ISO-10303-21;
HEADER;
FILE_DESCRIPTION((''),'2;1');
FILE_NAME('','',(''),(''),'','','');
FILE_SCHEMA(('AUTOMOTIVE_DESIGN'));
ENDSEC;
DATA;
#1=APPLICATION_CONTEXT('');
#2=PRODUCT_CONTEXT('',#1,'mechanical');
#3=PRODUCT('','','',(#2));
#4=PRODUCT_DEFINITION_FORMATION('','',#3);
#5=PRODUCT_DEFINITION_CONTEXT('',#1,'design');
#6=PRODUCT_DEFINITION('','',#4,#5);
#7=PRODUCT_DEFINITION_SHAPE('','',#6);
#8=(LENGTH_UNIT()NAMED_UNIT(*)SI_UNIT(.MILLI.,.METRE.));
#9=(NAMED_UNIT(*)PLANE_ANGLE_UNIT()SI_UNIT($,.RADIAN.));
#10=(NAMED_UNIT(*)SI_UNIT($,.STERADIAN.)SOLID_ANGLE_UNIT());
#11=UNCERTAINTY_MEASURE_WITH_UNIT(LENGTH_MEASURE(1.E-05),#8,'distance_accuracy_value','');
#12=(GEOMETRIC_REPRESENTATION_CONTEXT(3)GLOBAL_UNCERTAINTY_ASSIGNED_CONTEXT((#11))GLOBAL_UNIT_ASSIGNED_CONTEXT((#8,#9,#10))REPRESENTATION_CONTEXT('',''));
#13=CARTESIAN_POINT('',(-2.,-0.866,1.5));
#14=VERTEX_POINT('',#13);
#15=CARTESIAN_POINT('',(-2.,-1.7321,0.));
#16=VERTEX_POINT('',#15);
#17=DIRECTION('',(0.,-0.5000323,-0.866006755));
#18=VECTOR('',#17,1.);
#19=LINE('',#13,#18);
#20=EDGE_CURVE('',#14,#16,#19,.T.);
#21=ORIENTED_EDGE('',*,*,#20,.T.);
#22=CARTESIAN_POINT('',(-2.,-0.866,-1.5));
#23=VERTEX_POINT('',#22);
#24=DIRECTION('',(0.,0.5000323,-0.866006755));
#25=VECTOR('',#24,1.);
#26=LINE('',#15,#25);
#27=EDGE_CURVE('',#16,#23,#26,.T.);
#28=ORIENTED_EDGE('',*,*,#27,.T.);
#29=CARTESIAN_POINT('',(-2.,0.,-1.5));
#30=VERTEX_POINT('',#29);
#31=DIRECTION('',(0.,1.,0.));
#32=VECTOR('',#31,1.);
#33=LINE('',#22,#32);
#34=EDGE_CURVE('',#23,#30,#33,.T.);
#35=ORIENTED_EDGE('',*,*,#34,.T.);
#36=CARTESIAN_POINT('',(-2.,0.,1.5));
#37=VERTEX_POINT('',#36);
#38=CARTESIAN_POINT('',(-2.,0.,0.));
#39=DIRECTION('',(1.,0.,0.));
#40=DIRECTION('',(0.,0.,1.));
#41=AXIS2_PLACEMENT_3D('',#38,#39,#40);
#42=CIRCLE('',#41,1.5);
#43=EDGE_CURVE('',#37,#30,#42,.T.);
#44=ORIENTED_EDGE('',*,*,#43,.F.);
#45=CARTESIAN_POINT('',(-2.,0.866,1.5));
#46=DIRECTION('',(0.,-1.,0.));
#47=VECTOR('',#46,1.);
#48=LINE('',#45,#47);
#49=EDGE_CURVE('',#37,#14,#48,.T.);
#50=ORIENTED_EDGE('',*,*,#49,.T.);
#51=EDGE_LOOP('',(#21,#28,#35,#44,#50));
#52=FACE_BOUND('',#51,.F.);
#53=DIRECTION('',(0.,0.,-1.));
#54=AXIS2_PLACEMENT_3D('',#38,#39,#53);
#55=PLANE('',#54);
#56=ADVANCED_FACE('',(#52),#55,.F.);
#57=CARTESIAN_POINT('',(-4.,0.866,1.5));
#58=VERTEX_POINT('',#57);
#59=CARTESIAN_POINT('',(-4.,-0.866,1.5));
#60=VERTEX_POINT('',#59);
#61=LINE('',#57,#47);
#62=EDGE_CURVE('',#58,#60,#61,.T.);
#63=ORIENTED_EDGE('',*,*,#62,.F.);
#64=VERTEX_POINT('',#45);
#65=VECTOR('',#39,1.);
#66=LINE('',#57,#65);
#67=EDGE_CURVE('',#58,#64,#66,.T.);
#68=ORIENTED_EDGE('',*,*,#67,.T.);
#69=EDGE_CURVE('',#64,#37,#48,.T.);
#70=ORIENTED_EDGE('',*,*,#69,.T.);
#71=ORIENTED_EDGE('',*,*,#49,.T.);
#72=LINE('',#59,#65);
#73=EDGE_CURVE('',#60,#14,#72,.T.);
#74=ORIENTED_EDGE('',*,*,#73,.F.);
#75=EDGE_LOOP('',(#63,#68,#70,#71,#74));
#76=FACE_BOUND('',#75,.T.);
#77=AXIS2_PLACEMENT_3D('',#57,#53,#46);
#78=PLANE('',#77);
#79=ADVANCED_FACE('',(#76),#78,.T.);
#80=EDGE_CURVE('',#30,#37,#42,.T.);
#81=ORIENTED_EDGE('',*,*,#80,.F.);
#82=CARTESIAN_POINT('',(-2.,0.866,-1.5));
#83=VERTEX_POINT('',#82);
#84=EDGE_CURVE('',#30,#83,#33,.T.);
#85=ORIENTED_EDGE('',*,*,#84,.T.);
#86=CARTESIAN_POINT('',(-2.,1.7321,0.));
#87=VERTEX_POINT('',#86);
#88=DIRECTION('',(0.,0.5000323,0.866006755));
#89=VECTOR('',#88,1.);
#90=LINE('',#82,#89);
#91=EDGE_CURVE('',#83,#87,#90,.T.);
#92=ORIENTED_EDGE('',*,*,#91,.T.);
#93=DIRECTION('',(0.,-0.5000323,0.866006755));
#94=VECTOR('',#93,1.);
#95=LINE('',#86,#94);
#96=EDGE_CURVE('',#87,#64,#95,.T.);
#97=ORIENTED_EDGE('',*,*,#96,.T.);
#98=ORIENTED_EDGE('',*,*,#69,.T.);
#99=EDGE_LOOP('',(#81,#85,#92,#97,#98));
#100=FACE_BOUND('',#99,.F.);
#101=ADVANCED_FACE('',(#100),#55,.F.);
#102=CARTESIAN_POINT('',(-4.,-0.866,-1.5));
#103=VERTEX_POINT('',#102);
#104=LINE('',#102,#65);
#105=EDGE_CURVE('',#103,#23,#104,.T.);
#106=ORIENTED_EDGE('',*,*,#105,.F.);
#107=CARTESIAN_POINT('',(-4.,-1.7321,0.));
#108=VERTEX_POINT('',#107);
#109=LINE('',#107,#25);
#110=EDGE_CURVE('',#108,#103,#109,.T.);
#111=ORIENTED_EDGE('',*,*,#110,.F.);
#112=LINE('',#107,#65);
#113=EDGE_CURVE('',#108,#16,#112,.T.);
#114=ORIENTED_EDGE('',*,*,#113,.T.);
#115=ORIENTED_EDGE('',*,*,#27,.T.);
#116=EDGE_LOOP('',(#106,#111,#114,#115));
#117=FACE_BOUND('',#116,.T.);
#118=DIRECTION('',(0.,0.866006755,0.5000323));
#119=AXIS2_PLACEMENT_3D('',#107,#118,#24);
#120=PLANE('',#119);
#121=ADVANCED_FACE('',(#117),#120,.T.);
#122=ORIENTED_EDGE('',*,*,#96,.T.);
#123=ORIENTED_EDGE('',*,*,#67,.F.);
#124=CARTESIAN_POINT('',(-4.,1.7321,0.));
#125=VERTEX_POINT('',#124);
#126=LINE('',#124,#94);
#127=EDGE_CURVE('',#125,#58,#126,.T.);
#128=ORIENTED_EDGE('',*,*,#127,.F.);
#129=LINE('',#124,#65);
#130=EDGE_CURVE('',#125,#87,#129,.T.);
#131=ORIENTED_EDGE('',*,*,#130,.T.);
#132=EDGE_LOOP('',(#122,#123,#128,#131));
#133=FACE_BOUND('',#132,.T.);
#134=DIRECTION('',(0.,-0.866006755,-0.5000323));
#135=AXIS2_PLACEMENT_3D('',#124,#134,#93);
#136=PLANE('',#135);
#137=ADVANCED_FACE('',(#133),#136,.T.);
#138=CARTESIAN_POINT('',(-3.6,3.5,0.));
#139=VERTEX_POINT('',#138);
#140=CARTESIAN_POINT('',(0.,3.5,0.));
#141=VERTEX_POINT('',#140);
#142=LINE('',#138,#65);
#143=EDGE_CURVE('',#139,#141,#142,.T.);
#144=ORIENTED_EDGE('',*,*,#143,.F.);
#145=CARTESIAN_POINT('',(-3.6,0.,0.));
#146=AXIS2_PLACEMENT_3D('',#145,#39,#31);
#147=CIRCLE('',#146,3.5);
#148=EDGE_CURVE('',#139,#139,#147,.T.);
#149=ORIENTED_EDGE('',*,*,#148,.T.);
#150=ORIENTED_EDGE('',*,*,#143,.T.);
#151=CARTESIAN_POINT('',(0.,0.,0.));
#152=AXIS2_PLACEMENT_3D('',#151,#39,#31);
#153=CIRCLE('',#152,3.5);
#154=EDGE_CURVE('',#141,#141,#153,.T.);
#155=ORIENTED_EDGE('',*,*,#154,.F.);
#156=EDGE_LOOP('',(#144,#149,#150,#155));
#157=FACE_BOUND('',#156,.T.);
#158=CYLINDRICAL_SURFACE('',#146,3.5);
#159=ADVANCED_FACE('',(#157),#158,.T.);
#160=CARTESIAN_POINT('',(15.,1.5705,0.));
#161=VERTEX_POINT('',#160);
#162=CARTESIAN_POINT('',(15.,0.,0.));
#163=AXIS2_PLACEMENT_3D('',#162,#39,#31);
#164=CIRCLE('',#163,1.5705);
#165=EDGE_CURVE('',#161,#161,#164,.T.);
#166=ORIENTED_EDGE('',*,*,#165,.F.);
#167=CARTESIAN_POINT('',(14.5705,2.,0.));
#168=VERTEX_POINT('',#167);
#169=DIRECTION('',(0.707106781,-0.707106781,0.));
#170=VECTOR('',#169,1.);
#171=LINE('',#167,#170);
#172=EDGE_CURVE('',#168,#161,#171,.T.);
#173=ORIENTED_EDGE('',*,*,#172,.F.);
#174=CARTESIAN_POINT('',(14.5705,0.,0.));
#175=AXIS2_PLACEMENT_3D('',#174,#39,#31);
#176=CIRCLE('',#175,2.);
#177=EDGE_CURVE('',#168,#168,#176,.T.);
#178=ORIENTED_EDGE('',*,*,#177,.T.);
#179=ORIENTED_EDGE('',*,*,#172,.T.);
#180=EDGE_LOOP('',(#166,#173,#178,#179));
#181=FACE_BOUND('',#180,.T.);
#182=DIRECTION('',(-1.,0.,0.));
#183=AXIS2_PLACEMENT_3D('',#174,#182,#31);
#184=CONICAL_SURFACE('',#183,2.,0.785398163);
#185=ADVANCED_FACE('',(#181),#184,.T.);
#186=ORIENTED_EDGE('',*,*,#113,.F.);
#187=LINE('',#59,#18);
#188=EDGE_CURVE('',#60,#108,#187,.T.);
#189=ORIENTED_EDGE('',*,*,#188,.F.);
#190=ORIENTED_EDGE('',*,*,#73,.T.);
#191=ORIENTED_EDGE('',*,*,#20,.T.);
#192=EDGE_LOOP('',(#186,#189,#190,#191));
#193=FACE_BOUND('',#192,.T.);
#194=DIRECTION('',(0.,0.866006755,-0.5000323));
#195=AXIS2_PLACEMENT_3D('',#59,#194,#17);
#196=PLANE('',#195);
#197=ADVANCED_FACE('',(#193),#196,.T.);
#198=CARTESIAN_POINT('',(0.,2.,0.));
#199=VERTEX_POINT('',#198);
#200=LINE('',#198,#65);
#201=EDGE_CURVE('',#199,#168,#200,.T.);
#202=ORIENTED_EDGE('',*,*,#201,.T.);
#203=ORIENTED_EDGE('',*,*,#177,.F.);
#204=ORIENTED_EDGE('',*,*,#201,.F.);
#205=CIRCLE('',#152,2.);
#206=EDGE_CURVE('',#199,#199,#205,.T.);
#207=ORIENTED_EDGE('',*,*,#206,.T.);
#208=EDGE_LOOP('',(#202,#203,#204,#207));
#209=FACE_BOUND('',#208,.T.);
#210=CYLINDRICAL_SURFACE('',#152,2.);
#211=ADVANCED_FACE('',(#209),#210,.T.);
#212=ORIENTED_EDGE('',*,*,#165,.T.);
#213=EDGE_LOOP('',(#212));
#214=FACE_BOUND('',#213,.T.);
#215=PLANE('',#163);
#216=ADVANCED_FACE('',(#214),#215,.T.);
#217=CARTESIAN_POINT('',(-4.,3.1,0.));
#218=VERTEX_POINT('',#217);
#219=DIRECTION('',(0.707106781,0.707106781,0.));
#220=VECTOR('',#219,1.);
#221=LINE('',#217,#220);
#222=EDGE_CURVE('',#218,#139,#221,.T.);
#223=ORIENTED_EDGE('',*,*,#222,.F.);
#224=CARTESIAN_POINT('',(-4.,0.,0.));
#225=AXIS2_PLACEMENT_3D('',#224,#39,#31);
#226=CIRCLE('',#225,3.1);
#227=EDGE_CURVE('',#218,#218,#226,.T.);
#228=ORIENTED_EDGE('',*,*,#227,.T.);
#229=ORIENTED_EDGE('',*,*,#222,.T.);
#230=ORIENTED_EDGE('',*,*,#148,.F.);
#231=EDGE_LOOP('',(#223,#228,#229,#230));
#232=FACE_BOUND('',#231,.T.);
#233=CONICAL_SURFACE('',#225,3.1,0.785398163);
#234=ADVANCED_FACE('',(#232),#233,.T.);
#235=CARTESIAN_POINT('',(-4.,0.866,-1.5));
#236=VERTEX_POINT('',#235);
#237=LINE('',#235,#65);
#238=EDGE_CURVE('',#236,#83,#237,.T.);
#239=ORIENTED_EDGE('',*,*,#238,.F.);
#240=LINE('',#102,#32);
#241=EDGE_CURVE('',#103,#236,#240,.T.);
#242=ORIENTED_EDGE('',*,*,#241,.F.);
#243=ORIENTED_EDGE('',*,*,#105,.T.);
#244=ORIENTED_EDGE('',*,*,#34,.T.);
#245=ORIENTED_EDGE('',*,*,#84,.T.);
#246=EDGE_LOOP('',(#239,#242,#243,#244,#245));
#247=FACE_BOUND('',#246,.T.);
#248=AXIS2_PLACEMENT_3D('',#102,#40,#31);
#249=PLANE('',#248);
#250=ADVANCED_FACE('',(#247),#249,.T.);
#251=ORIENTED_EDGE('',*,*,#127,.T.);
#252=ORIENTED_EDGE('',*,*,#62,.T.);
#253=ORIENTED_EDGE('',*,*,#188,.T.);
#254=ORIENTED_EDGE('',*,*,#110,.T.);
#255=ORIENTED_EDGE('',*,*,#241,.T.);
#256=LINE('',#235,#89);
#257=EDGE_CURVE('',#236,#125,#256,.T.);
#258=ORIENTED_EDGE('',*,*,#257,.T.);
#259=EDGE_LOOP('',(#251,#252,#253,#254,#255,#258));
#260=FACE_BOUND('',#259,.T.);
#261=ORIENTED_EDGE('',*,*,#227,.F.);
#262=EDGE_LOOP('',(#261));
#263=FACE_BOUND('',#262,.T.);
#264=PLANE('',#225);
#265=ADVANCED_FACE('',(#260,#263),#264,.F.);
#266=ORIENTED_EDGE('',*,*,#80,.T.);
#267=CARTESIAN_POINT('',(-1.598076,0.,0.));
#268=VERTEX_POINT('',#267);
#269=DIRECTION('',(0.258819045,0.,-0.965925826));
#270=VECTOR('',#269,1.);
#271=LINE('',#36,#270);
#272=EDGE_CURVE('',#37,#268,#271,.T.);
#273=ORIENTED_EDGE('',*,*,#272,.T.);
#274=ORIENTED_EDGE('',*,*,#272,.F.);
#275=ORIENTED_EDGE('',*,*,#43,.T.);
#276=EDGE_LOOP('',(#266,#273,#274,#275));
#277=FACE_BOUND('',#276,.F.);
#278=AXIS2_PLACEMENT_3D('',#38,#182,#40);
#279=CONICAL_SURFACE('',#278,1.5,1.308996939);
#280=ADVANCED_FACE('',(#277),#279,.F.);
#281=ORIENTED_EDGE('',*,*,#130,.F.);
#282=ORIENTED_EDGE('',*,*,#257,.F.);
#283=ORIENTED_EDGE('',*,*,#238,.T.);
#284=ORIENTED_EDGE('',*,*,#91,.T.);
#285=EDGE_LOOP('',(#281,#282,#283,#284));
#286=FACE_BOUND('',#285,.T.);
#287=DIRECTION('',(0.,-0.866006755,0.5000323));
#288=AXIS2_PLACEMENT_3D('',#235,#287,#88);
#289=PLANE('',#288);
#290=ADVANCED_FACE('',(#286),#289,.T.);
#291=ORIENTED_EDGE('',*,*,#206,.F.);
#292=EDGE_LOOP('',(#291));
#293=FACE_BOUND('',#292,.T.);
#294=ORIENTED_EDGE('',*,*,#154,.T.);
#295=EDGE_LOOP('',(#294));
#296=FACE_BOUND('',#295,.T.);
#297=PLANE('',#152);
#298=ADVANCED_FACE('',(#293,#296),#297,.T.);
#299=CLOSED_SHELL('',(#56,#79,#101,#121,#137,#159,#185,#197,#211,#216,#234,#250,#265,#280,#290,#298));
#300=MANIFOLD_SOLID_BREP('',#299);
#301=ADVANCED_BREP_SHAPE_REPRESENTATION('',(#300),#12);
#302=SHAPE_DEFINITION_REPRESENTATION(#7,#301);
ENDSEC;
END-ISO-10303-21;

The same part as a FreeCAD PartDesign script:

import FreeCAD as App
import Part
import Sketcher

V = App.Vector
Q = App.Units.Quantity


def add_polygon(sketch, points):
    """Adds a closed chain of lines whose ends are joined by coincident constraints."""
    first, n = sketch.GeometryCount, len(points)
    for a, b in zip(points, points[1:] + points[:1]):
        sketch.addGeometry(Part.LineSegment(App.Vector(*a, 0), App.Vector(*b, 0)), False)
    for i in range(n):
        sketch.addConstraint(Sketcher.Constraint("Coincident", first + i, 2, first + (i + 1) % n, 1))

doc = App.newDocument("Part")
body = doc.addObject("PartDesign::Body", "Body")

sketch1 = doc.addObject("Sketcher::SketchObject", "Sketch")
body.addObject(sketch1)
sketch1.AttachmentSupport = (doc.XY_Plane, [""])
sketch1.MapMode = "FlatFace"
add_polygon(sketch1, [(-4, 0), (15, 0), (15, 1.6), (14.6, 2), (0, 2), (0, 3.5), (-3.6, 3.5), (-4, 3.1)])
sketch1.addConstraint(Sketcher.Constraint("Horizontal", 0))
sketch1.addConstraint(Sketcher.Constraint("Vertical", 1))
sketch1.addConstraint(Sketcher.Constraint("Horizontal", 3))
sketch1.addConstraint(Sketcher.Constraint("Vertical", 4))
sketch1.addConstraint(Sketcher.Constraint("Horizontal", 5))
sketch1.addConstraint(Sketcher.Constraint("Vertical", 7))
sketch1.addConstraint(Sketcher.Constraint("PointOnObject", 0, 2, -1))
sketch1.addConstraint(Sketcher.Constraint("PointOnObject", 3, 2, -2))
sketch1.addConstraint(Sketcher.Constraint("Perpendicular", 2, 6))
sketch1.addConstraint(Sketcher.Constraint("DistanceX", 0, 1, 0, 2, 19.0))
sketch1.addConstraint(Sketcher.Constraint("Angle", 2, Q("135 deg")))
sketch1.addConstraint(Sketcher.Constraint("DistanceX", 5, 2, 5, 1, 3.6))
sketch1.addConstraint(Sketcher.Constraint("DistanceY", 4, 1, 4, 2, 1.5))
sketch1.addConstraint(Sketcher.Constraint("DistanceY", 7, 2, 7, 1, 3.1))
sketch1.addConstraint(Sketcher.Constraint("DistanceX", -1, 1, 0, 2, 15.0))
sketch1.addConstraint(Sketcher.Constraint("DistanceX", 3, 2, 3, 1, 14.5705))
revolution = doc.addObject("PartDesign::Revolution", "Revolution")
body.addObject(revolution)
revolution.Profile = sketch1
revolution.ReferenceAxis = (sketch1, ["H_Axis"])
revolution.Angle = 360

sketch2 = doc.addObject("Sketcher::SketchObject", "Sketch001")
body.addObject(sketch2)
sketch2.AttachmentSupport = (doc.YZ_Plane, [""])
sketch2.MapMode = "FlatFace"
sketch2.AttachmentOffset = App.Placement(V(0, 0, -4), App.Rotation())
sketch2.addGeometry(Part.Circle(V(0, 0, 0), V(0, 0, 1), 1.5), False)
sketch2.addConstraint(Sketcher.Constraint("Coincident", 0, 3, -1, 1))
sketch2.addConstraint(Sketcher.Constraint("Diameter", 0, 3.0))
doc.recompute()
hole = doc.addObject("PartDesign::Hole", "Hole")
body.addObject(hole)
hole.Profile = sketch2
hole.ThreadType = "None"
hole.Diameter = 3
hole.DepthType = "Dimension"
hole.Depth = 2
hole.DrillPoint = "Angled"
hole.DrillPointAngle = 150
hole.Reversed = True

sketch3 = doc.addObject("Sketcher::SketchObject", "Sketch002")
body.addObject(sketch3)
sketch3.AttachmentSupport = (doc.YZ_Plane, [""])
sketch3.MapMode = "FlatFace"
sketch3.AttachmentOffset = App.Placement(V(0, 0, -4), App.Rotation())
add_polygon(sketch3, [(0.9, 1.5), (-0.9, 1.5), (-1.7, 0), (-0.9, -1.5), (0.9, -1.5), (1.7, 0)])
sketch3.addConstraint(Sketcher.Constraint("Horizontal", 0))
sketch3.addConstraint(Sketcher.Constraint("Horizontal", 3))
sketch3.addConstraint(Sketcher.Constraint("Symmetric", 0, 2, 3, 2, -1, 1))
sketch3.addConstraint(Sketcher.Constraint("Symmetric", 1, 2, 4, 2, -1, 1))
sketch3.addConstraint(Sketcher.Constraint("PointOnObject", 1, 2, -1))
sketch3.addConstraint(Sketcher.Constraint("Parallel", 2, 5))
sketch3.addConstraint(Sketcher.Constraint("Vertical", 0, 2, 2, 2))
sketch3.addConstraint(Sketcher.Constraint("DistanceY", 2, 2, 0, 2, 3.0))
sketch3.addConstraint(Sketcher.Constraint("DistanceX", 0, 2, 0, 1, 1.732))
sketch3.addConstraint(Sketcher.Constraint("Distance", 1, 1.732))
pocket1 = doc.addObject("PartDesign::Pocket", "Pocket")
body.addObject(pocket1)
pocket1.Profile = sketch3
pocket1.Length = 2
pocket1.Reversed = True

doc.recompute()
